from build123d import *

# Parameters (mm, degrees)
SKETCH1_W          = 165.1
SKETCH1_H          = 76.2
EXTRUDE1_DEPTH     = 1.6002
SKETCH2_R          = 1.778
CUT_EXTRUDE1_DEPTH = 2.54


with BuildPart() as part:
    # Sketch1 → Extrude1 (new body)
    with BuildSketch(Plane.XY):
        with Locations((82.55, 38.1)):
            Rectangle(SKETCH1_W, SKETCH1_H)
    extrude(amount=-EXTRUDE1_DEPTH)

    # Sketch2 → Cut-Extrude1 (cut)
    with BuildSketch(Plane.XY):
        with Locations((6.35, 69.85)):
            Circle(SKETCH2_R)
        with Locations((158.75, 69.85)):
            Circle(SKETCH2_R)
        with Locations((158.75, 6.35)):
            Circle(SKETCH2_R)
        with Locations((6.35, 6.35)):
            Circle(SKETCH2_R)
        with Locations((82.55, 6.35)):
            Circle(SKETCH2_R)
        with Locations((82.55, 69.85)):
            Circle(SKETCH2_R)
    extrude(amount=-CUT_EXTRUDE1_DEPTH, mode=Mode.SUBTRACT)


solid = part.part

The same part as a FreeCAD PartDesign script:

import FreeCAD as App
import Part
import Sketcher
from FreeCAD import Vector
Q = App.Units.Quantity

doc = App.newDocument("Part")
params = doc.addObject("Spreadsheet::Sheet", "Params")
for row, (alias, value) in enumerate([
    ("sketch1_height", "3 in"),
    ("sketch1_width", "6.5 in"),
    ("pad1_length", "0.063 in"),
    ("sketch2_diameter", "0.14 in"),
    ("pocket1_length", "0.1 in"),
], start=1):
    params.set(f"A{row}", alias)
    params.set(f"B{row}", "=" + value)
    params.setAlias(f"B{row}", alias)

body = doc.addObject("PartDesign::Body", "Body")

sketch1 = doc.addObject("Sketcher::SketchObject", "Sketch")
body.addObject(sketch1)
sketch1.AttachmentSupport = (doc.XY_Plane, [""])
sketch1.MapMode = "FlatFace"
sketch1.addGeometry(Part.LineSegment(Vector(0, 76, 0), Vector(0, 0, 0)), False)
sketch1.addGeometry(Part.LineSegment(Vector(0, 0, 0), Vector(165, 0, 0)), False)
sketch1.addGeometry(Part.LineSegment(Vector(165, 0, 0), Vector(165, 76, 0)), False)
sketch1.addGeometry(Part.LineSegment(Vector(165, 76, 0), Vector(0, 76, 0)), False)
sketch1.addConstraint(Sketcher.Constraint("Coincident", 0, 2, 1, 1))
sketch1.addConstraint(Sketcher.Constraint("Coincident", 1, 2, 2, 1))
sketch1.addConstraint(Sketcher.Constraint("Coincident", 2, 2, 3, 1))
sketch1.addConstraint(Sketcher.Constraint("Coincident", 3, 2, 0, 1))
sketch1.addConstraint(Sketcher.Constraint("Vertical", 0))
sketch1.addConstraint(Sketcher.Constraint("Horizontal", 1))
sketch1.addConstraint(Sketcher.Constraint("Vertical", 2))
sketch1.addConstraint(Sketcher.Constraint("Horizontal", 3))
sketch1.addConstraint(Sketcher.Constraint("Coincident", 0, 2, -1, 1))
sketch1.addConstraint(Sketcher.Constraint("DistanceY", 0, 2, 0, 1, Q("3 in")))
sketch1.addConstraint(Sketcher.Constraint("DistanceX", 1, 1, 1, 2, Q("6.5 in")))
sketch1.setExpression("Constraints[9]", "Params.sketch1_height")
sketch1.setExpression("Constraints[10]", "Params.sketch1_width")
pad1 = doc.addObject("PartDesign::Pad", "Pad")
body.addObject(pad1)
pad1.Profile = sketch1
pad1.setExpression("Length", "Params.pad1_length")
pad1.Reversed = True

sketch2 = doc.addObject("Sketcher::SketchObject", "Sketch001")
body.addObject(sketch2)
sketch2.AttachmentSupport = (doc.XY_Plane, [""])
sketch2.MapMode = "FlatFace"
sketch2.addGeometry(Part.Circle(Vector(6.3, 69.8, 0), Vector(0, 0, 1), 1.8), False)
sketch2.addGeometry(Part.Circle(Vector(158.8, 69.8, 0), Vector(0, 0, 1), 1.8), False)
sketch2.addGeometry(Part.Circle(Vector(158.8, 6.3, 0), Vector(0, 0, 1), 1.8), False)
sketch2.addGeometry(Part.Circle(Vector(6.3, 6.3, 0), Vector(0, 0, 1), 1.8), False)
sketch2.addGeometry(Part.Circle(Vector(82.5, 6.3, 0), Vector(0, 0, 1), 1.8), False)
sketch2.addGeometry(Part.Circle(Vector(82.5, 69.8, 0), Vector(0, 0, 1), 1.8), False)
sketch2.addConstraint(Sketcher.Constraint("Equal", 0, 1))
sketch2.addConstraint(Sketcher.Constraint("Equal", 1, 2))
sketch2.addConstraint(Sketcher.Constraint("Equal", 2, 3))
sketch2.addConstraint(Sketcher.Constraint("Equal", 3, 4))
sketch2.addConstraint(Sketcher.Constraint("Equal", 4, 5))
sketch2.addConstraint(Sketcher.Constraint("Horizontal", 0, 3, 1, 3))
sketch2.addConstraint(Sketcher.Constraint("Horizontal", 2, 3, 3, 3))
sketch2.addConstraint(Sketcher.Constraint("Horizontal", 3, 3, 4, 3))
sketch2.addConstraint(Sketcher.Constraint("Horizontal", 1, 3, 5, 3))
sketch2.addConstraint(Sketcher.Constraint("Vertical", 1, 3, 2, 3))
sketch2.addConstraint(Sketcher.Constraint("Vertical", 0, 3, 3, 3))
sketch2.addConstraint(Sketcher.Constraint("Vertical", 4, 3, 5, 3))
sketch2.addConstraint(Sketcher.Constraint("Diameter", 0, Q("0.14 in")))
sketch2.addConstraint(Sketcher.Constraint("DistanceX", 0, 3, 1, 3, Q("6 in")))
sketch2.addConstraint(Sketcher.Constraint("DistanceX", 4, 3, 2, 3, Q("3 in")))
sketch2.addConstraint(Sketcher.Constraint("DistanceY", 2, 3, 1, 3, Q("2.5 in")))
sketch2.addConstraint(Sketcher.Constraint("DistanceX", -1, 1, 0, 3, Q("0.25 in")))
sketch2.addConstraint(Sketcher.Constraint("DistanceY", -1, 1, 0, 3, Q("2.75 in")))
sketch2.setExpression("Constraints[12]", "Params.sketch2_diameter")
pocket1 = doc.addObject("PartDesign::Pocket", "Pocket")
body.addObject(pocket1)
pocket1.Profile = sketch2
pocket1.setExpression("Length", "Params.pocket1_length")

doc.recompute()
